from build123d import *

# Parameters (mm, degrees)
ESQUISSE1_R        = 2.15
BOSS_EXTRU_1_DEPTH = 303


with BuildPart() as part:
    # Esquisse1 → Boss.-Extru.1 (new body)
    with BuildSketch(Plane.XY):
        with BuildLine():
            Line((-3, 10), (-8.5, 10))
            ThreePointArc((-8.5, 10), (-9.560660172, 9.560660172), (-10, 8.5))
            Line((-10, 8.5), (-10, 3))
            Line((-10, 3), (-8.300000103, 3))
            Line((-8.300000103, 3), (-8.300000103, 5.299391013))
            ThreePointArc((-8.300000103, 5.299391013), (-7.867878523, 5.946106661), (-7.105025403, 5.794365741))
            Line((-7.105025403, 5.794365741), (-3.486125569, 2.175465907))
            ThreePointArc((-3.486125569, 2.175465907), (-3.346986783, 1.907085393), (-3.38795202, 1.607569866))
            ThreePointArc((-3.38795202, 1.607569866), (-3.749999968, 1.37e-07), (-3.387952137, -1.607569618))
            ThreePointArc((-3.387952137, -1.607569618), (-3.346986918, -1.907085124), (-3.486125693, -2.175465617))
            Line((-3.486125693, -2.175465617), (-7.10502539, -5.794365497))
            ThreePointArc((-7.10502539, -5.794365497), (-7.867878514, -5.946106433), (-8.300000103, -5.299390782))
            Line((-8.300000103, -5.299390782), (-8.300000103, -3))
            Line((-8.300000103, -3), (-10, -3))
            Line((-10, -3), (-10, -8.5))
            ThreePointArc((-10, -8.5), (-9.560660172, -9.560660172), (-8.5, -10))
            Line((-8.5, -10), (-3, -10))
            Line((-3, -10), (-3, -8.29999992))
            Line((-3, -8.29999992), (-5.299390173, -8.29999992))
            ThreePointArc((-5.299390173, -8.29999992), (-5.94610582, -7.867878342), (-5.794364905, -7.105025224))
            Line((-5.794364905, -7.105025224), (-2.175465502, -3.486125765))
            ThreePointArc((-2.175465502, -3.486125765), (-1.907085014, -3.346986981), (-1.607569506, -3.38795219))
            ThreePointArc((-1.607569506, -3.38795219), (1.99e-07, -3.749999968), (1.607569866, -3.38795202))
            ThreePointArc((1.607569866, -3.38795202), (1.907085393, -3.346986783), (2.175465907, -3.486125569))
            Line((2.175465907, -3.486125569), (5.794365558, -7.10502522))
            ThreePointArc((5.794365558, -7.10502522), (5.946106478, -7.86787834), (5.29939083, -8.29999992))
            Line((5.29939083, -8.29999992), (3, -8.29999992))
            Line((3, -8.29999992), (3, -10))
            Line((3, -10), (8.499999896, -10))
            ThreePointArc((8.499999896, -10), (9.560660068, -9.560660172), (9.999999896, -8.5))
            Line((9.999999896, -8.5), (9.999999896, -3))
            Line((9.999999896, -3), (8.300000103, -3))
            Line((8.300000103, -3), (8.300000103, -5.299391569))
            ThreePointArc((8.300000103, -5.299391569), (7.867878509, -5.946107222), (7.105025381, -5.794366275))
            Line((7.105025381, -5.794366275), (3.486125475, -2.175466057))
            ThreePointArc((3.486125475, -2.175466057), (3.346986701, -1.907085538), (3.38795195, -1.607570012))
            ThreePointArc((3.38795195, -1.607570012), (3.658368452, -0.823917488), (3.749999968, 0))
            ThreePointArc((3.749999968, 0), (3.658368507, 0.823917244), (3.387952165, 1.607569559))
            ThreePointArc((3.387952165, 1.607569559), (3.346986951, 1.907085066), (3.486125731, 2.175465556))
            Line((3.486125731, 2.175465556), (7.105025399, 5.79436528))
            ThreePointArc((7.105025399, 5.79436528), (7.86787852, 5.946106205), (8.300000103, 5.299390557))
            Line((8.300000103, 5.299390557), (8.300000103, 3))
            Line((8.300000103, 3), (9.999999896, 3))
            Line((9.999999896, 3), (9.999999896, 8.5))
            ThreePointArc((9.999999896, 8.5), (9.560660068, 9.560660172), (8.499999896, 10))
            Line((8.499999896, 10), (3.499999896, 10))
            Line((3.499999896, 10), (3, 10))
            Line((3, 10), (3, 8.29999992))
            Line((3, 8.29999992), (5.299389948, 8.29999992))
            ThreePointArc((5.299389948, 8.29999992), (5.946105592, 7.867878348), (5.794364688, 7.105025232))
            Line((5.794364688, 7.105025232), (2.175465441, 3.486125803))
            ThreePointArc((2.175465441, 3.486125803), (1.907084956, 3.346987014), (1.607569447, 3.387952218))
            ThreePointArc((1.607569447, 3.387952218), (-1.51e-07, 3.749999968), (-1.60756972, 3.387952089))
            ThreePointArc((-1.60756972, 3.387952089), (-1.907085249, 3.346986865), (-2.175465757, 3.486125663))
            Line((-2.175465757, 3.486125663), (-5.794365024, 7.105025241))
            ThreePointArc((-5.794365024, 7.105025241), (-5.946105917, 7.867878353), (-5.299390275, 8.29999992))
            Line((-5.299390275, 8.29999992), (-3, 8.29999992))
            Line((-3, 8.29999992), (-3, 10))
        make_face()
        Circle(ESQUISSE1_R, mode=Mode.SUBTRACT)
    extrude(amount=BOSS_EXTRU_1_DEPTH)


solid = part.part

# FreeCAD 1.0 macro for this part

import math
import FreeCAD as App
import Part
import Sketcher
from FreeCAD import Vector

doc = App.newDocument("Part")
params = doc.addObject("Spreadsheet::Sheet", "Params")
for row, (alias, value) in enumerate([
    ("sketch1_diameter", "4.3 mm"),
    ("sketch1_radius", "1.5 mm"),
    ("sketch1_radius2", "0.7 mm"),
    ("sketch1_radius3", "0.5 mm"),
    ("sketch1_radius4", "3.75 mm"),
    ("pad1_length", "303 mm"),
], start=1):
    params.set(f"A{row}", alias)
    params.set(f"B{row}", "=" + value)
    params.setAlias(f"B{row}", alias)

body = doc.addObject("PartDesign::Body", "Body")

sketch1 = doc.addObject("Sketcher::SketchObject", "Sketch")
body.addObject(sketch1)
sketch1.AttachmentSupport = (doc.XY_Plane, [""])
sketch1.MapMode = "FlatFace"
sketch1.addGeometry([
    Part.LineSegment(Vector(-3, 10, 0), Vector(-8.5, 10, 0)),
    Part.ArcOfCircle(Part.Circle(Vector(-8.5, 8.5, 0), Vector(0, 0, 1), 1.5), math.radians(90), math.radians(180)),
    Part.LineSegment(Vector(-10, 8.5, 0), Vector(-10, 3, 0)),
    Part.LineSegment(Vector(-10, 3, 0), Vector(-8.3, 3, 0)),
    Part.LineSegment(Vector(-8.3, 3, 0), Vector(-8.3, 5.3, 0)),
    Part.ArcOfCircle(Part.Circle(Vector(-7.6, 5.3, 0), Vector(0, 0, 1), 0.7), math.radians(45), math.radians(180)),
    Part.LineSegment(Vector(-7.11, 5.79, 0), Vector(-3.49, 2.18, 0)),
    Part.ArcOfCircle(Part.Circle(Vector(-3.84, 1.82, 0), Vector(0, 0, 1), 0.5), math.radians(-25), math.radians(45)),
    Part.ArcOfCircle(Part.Circle(Vector(0, 0, 0), Vector(0, 0, 1), 3.75), math.radians(155), math.radians(205)),
    Part.ArcOfCircle(Part.Circle(Vector(-3.84, -1.82, 0), Vector(0, 0, 1), 0.5), math.radians(-45), math.radians(25)),
    Part.LineSegment(Vector(-3.49, -2.18, 0), Vector(-7.11, -5.79, 0)),
    Part.ArcOfCircle(Part.Circle(Vector(-7.6, -5.3, 0), Vector(0, 0, 1), 0.7), math.radians(180), math.radians(315)),
    Part.LineSegment(Vector(-8.3, -5.3, 0), Vector(-8.3, -3, 0)),
    Part.LineSegment(Vector(-8.3, -3, 0), Vector(-10, -3, 0)),
    Part.LineSegment(Vector(-10, -3, 0), Vector(-10, -8.5, 0)),
    Part.ArcOfCircle(Part.Circle(Vector(-8.5, -8.5, 0), Vector(0, 0, 1), 1.5), math.radians(180), math.radians(270)),
    Part.LineSegment(Vector(-8.5, -10, 0), Vector(-3, -10, 0)),
    Part.LineSegment(Vector(-3, -10, 0), Vector(-3, -8.3, 0)),
    Part.LineSegment(Vector(-3, -8.3, 0), Vector(-5.3, -8.3, 0)),
    Part.ArcOfCircle(Part.Circle(Vector(-5.3, -7.6, 0), Vector(0, 0, 1), 0.7), math.radians(135), math.radians(270)),
    Part.LineSegment(Vector(-5.79, -7.11, 0), Vector(-2.18, -3.49, 0)),
    Part.ArcOfCircle(Part.Circle(Vector(-1.82, -3.84, 0), Vector(0, 0, 1), 0.5), math.radians(65), math.radians(135)),
    Part.ArcOfCircle(Part.Circle(Vector(0, 0, 0), Vector(0, 0, 1), 3.75), math.radians(-115), math.radians(-65)),
    Part.ArcOfCircle(Part.Circle(Vector(1.82, -3.84, 0), Vector(0, 0, 1), 0.5), math.radians(45), math.radians(115)),
    Part.LineSegment(Vector(2.18, -3.49, 0), Vector(5.79, -7.11, 0)),
    Part.ArcOfCircle(Part.Circle(Vector(5.3, -7.6, 0), Vector(0, 0, 1), 0.7), math.radians(-90), math.radians(45)),
    Part.LineSegment(Vector(5.3, -8.3, 0), Vector(3, -8.3, 0)),
    Part.LineSegment(Vector(3, -8.3, 0), Vector(3, -10, 0)),
    Part.LineSegment(Vector(3, -10, 0), Vector(8.5, -10, 0)),
    Part.ArcOfCircle(Part.Circle(Vector(8.5, -8.5, 0), Vector(0, 0, 1), 1.5), math.radians(-90), math.radians(0)),
    Part.LineSegment(Vector(10, -8.5, 0), Vector(10, -3, 0)),
    Part.LineSegment(Vector(10, -3, 0), Vector(8.3, -3, 0)),
    Part.LineSegment(Vector(8.3, -3, 0), Vector(8.3, -5.3, 0)),
    Part.ArcOfCircle(Part.Circle(Vector(7.6, -5.3, 0), Vector(0, 0, 1), 0.7), math.radians(-135), math.radians(0)),
    Part.LineSegment(Vector(7.11, -5.79, 0), Vector(3.49, -2.18, 0)),
    Part.ArcOfCircle(Part.Circle(Vector(3.84, -1.82, 0), Vector(0, 0, 1), 0.5), math.radians(155), math.radians(225)),
    Part.ArcOfCircle(Part.Circle(Vector(0, 0, 0), Vector(0, 0, 1), 3.75), math.radians(-25), math.radians(0)),
    Part.ArcOfCircle(Part.Circle(Vector(0, 0, 0), Vector(0, 0, 1), 3.75), math.radians(0), math.radians(25)),
    Part.ArcOfCircle(Part.Circle(Vector(3.84, 1.82, 0), Vector(0, 0, 1), 0.5), math.radians(135), math.radians(205)),
    Part.LineSegment(Vector(3.49, 2.18, 0), Vector(7.11, 5.79, 0)),
    Part.ArcOfCircle(Part.Circle(Vector(7.6, 5.3, 0), Vector(0, 0, 1), 0.7), math.radians(0), math.radians(135)),
    Part.LineSegment(Vector(8.3, 5.3, 0), Vector(8.3, 3, 0)),
    Part.LineSegment(Vector(8.3, 3, 0), Vector(10, 3, 0)),
    Part.LineSegment(Vector(10, 3, 0), Vector(10, 8.5, 0)),
    Part.ArcOfCircle(Part.Circle(Vector(8.5, 8.5, 0), Vector(0, 0, 1), 1.5), math.radians(0), math.radians(90)),
    Part.LineSegment(Vector(8.5, 10, 0), Vector(3, 10, 0)),
    Part.LineSegment(Vector(3, 10, 0), Vector(3, 8.3, 0)),
    Part.LineSegment(Vector(3, 8.3, 0), Vector(5.3, 8.3, 0)),
    Part.ArcOfCircle(Part.Circle(Vector(5.3, 7.6, 0), Vector(0, 0, 1), 0.7), math.radians(-45), math.radians(90)),
    Part.LineSegment(Vector(5.79, 7.11, 0), Vector(2.18, 3.49, 0)),
    Part.ArcOfCircle(Part.Circle(Vector(1.82, 3.84, 0), Vector(0, 0, 1), 0.5), math.radians(-115), math.radians(-45)),
    Part.ArcOfCircle(Part.Circle(Vector(0, 0, 0), Vector(0, 0, 1), 3.75), math.radians(65), math.radians(115)),
    Part.ArcOfCircle(Part.Circle(Vector(-1.82, 3.84, 0), Vector(0, 0, 1), 0.5), math.radians(-135), math.radians(-65)),
    Part.LineSegment(Vector(-2.18, 3.49, 0), Vector(-5.79, 7.11, 0)),
    Part.ArcOfCircle(Part.Circle(Vector(-5.3, 7.6, 0), Vector(0, 0, 1), 0.7), math.radians(90), math.radians(225)),
    Part.LineSegment(Vector(-5.3, 8.3, 0), Vector(-3, 8.3, 0)),
    Part.LineSegment(Vector(-3, 8.3, 0), Vector(-3, 10, 0)),
    Part.Circle(Vector(0, 0, 0), Vector(0, 0, 1), 2.15),
], False)
sketch1.addConstraint([
    Sketcher.Constraint("Tangent", 0, 2, 1, 1),
    Sketcher.Constraint("Tangent", 1, 2, 2, 1),
    Sketcher.Constraint("Coincident", 2, 2, 3, 1),
    Sketcher.Constraint("Coincident", 3, 2, 4, 1),
    Sketcher.Constraint("Tangent", 4, 2, 5, 2),
    Sketcher.Constraint("Tangent", 5, 1, 6, 1),
    Sketcher.Constraint("Tangent", 6, 2, 7, 2),
    Sketcher.Constraint("Tangent", 7, 1, 8, 1),
    Sketcher.Constraint("Tangent", 8, 2, 9, 2),
    Sketcher.Constraint("Tangent", 9, 1, 10, 1),
    Sketcher.Constraint("Tangent", 10, 2, 11, 2),
    Sketcher.Constraint("Tangent", 11, 1, 12, 1),
    Sketcher.Constraint("Coincident", 12, 2, 13, 1),
    Sketcher.Constraint("Coincident", 13, 2, 14, 1),
    Sketcher.Constraint("Tangent", 14, 2, 15, 1),
    Sketcher.Constraint("Tangent", 15, 2, 16, 1),
    Sketcher.Constraint("Coincident", 16, 2, 17, 1),
    Sketcher.Constraint("Coincident", 17, 2, 18, 1),
    Sketcher.Constraint("Tangent", 18, 2, 19, 2),
    Sketcher.Constraint("Tangent", 19, 1, 20, 1),
    Sketcher.Constraint("Tangent", 20, 2, 21, 2),
    Sketcher.Constraint("Tangent", 21, 1, 22, 1),
    Sketcher.Constraint("Tangent", 22, 2, 23, 2),
    Sketcher.Constraint("Tangent", 23, 1, 24, 1),
    Sketcher.Constraint("Tangent", 24, 2, 25, 2),
    Sketcher.Constraint("Tangent", 25, 1, 26, 1),
    Sketcher.Constraint("Coincident", 26, 2, 27, 1),
    Sketcher.Constraint("Coincident", 27, 2, 28, 1),
    Sketcher.Constraint("Tangent", 28, 2, 29, 1),
    Sketcher.Constraint("Tangent", 29, 2, 30, 1),
    Sketcher.Constraint("Coincident", 30, 2, 31, 1),
    Sketcher.Constraint("Coincident", 31, 2, 32, 1),
    Sketcher.Constraint("Tangent", 32, 2, 33, 2),
    Sketcher.Constraint("Tangent", 33, 1, 34, 1),
    Sketcher.Constraint("Tangent", 34, 2, 35, 2),
    Sketcher.Constraint("Tangent", 35, 1, 36, 1),
    Sketcher.Constraint("Tangent", 36, 2, 37, 1),
    Sketcher.Constraint("Tangent", 37, 2, 38, 2),
    Sketcher.Constraint("Tangent", 38, 1, 39, 1),
    Sketcher.Constraint("Tangent", 39, 2, 40, 2),
    Sketcher.Constraint("Tangent", 40, 1, 41, 1),
    Sketcher.Constraint("Coincident", 41, 2, 42, 1),
    Sketcher.Constraint("Coincident", 42, 2, 43, 1),
    Sketcher.Constraint("Tangent", 43, 2, 44, 1),
    Sketcher.Constraint("Tangent", 44, 2, 45, 1),
    Sketcher.Constraint("Coincident", 45, 2, 46, 1),
    Sketcher.Constraint("Coincident", 46, 2, 47, 1),
    Sketcher.Constraint("Tangent", 47, 2, 48, 2),
    Sketcher.Constraint("Tangent", 48, 1, 49, 1),
    Sketcher.Constraint("Tangent", 49, 2, 50, 2),
    Sketcher.Constraint("Tangent", 50, 1, 51, 1),
    Sketcher.Constraint("Tangent", 51, 2, 52, 2),
    Sketcher.Constraint("Tangent", 52, 1, 53, 1),
    Sketcher.Constraint("Tangent", 53, 2, 54, 2),
    Sketcher.Constraint("Tangent", 54, 1, 55, 1),
    Sketcher.Constraint("Coincident", 55, 2, 56, 1),
    Sketcher.Constraint("Coincident", 56, 2, 0, 1),
    Sketcher.Constraint("Horizontal", 0),
    Sketcher.Constraint("Vertical", 2),
    Sketcher.Constraint("Horizontal", 3),
    Sketcher.Constraint("Vertical", 4),
    Sketcher.Constraint("Vertical", 12),
    Sketcher.Constraint("Horizontal", 13),
    Sketcher.Constraint("Vertical", 14),
    Sketcher.Constraint("Horizontal", 16),
    Sketcher.Constraint("Vertical", 17),
    Sketcher.Constraint("Horizontal", 18),
    Sketcher.Constraint("Horizontal", 26),
    Sketcher.Constraint("Vertical", 27),
    Sketcher.Constraint("Horizontal", 28),
    Sketcher.Constraint("Vertical", 30),
    Sketcher.Constraint("Horizontal", 31),
    Sketcher.Constraint("Vertical", 32),
    Sketcher.Constraint("Vertical", 41),
    Sketcher.Constraint("Horizontal", 42),
    Sketcher.Constraint("Vertical", 43),
    Sketcher.Constraint("Horizontal", 45),
    Sketcher.Constraint("Vertical", 46),
    Sketcher.Constraint("Horizontal", 47),
    Sketcher.Constraint("Horizontal", 55),
    Sketcher.Constraint("Vertical", 56),
    Sketcher.Constraint("Coincident", 8, 3, -1, 1),
    Sketcher.Constraint("Coincident", 22, 3, -1, 1),
    Sketcher.Constraint("Coincident", 36, 3, -1, 1),
    Sketcher.Constraint("Coincident", 51, 3, -1, 1),
    Sketcher.Constraint("Coincident", 57, 3, -1, 1),
    Sketcher.Constraint("Equal", 7, 9),
    Sketcher.Constraint("Equal", 5, 11),
    Sketcher.Constraint("Equal", 1, 15),
    Sketcher.Constraint("Equal", 11, 19),
    Sketcher.Constraint("Equal", 9, 21),
    Sketcher.Constraint("Equal", 8, 22),
    Sketcher.Constraint("Equal", 21, 23),
    Sketcher.Constraint("Equal", 19, 25),
    Sketcher.Constraint("Equal", 15, 29),
    Sketcher.Constraint("Equal", 25, 33),
    Sketcher.Constraint("Equal", 23, 35),
    Sketcher.Constraint("Equal", 22, 36),
    Sketcher.Constraint("Equal", 36, 37),
    Sketcher.Constraint("Equal", 35, 38),
    Sketcher.Constraint("Equal", 33, 40),
    Sketcher.Constraint("Equal", 29, 44),
    Sketcher.Constraint("Equal", 40, 48),
    Sketcher.Constraint("Equal", 38, 50),
    Sketcher.Constraint("Equal", 37, 51),
    Sketcher.Constraint("Equal", 50, 52),
    Sketcher.Constraint("Equal", 48, 54),
    Sketcher.Constraint("Symmetric", 1, 3, 29, 3, -1, 1),
    Sketcher.Constraint("Symmetric", 5, 3, 33, 3, -1, 1),
    Sketcher.Constraint("Symmetric", 11, 3, 40, 3, -1, 1),
    Sketcher.Constraint("Symmetric", 15, 3, 44, 3, -1, 1),
    Sketcher.Constraint("Symmetric", 19, 3, 48, 3, -1, 1),
    Sketcher.Constraint("Symmetric", 25, 3, 54, 3, -1, 1),
    Sketcher.Constraint("Symmetric", 19, 3, 25, 3, -2),
    Sketcher.Constraint("Symmetric", 15, 3, 29, 3, -2),
    Sketcher.Constraint("Symmetric", 11, 3, 33, 3, -2),
    Sketcher.Constraint("PointOnObject", 36, 2, -1),
    Sketcher.Constraint("Perpendicular", 6, 10),
    Sketcher.Constraint("Parallel", 10, 20),
    Sketcher.Constraint("Perpendicular", 20, 24),
    Sketcher.Constraint("Parallel", 24, 34),
    Sketcher.Constraint("Perpendicular", 34, 39),
    Sketcher.Constraint("Parallel", 39, 49),
    Sketcher.Constraint("Perpendicular", 49, 53),
    Sketcher.Constraint("Horizontal", 21, 3, 23, 3),
    Sketcher.Constraint("Horizontal", 13, 2, 30, 2),
    Sketcher.Constraint("Horizontal", 3, 2, 41, 2),
    Sketcher.Constraint("Vertical", 27, 2, 45, 2),
    Sketcher.Constraint("Vertical", 17, 2, 55, 2),
    Sketcher.Constraint("Equal", 18, 26),
    Sketcher.Constraint("Equal", 45, 2),
    Sketcher.Constraint("Equal", 55, 4),
    Sketcher.Constraint("Equal", 4, 12),
    Sketcher.Constraint("Equal", 42, 17),
    Sketcher.Constraint("Equal", 10, 20),
    Sketcher.Constraint("Diameter", 57, 4.3),
    Sketcher.Constraint("Radius", 1, 1.5),
    Sketcher.Constraint("Radius", 5, 0.7),
    Sketcher.Constraint("Radius", 7, 0.5),
    Sketcher.Constraint("Radius", 8, 3.75),
    Sketcher.Constraint("DistanceX", 0, 2, 0, 1, 5.5),
    Sketcher.Constraint("DistanceX", 3, 1, 3, 2, 1.7),
    Sketcher.Constraint("DistanceY", -1, 1, 0, 2, 10.0),
    Sketcher.Constraint("DistanceX", 18, 2, 18, 1, 2.29939),
])
sketch1.setExpression("Constraints[135]", "Params.sketch1_diameter")
sketch1.setExpression("Constraints[136]", "Params.sketch1_radius")
sketch1.setExpression("Constraints[137]", "Params.sketch1_radius2")
sketch1.setExpression("Constraints[138]", "Params.sketch1_radius3")
sketch1.setExpression("Constraints[139]", "Params.sketch1_radius4")
pad1 = doc.addObject("PartDesign::Pad", "Pad")
body.addObject(pad1)
pad1.Profile = sketch1
pad1.setExpression("Length", "Params.pad1_length")

doc.recompute()
